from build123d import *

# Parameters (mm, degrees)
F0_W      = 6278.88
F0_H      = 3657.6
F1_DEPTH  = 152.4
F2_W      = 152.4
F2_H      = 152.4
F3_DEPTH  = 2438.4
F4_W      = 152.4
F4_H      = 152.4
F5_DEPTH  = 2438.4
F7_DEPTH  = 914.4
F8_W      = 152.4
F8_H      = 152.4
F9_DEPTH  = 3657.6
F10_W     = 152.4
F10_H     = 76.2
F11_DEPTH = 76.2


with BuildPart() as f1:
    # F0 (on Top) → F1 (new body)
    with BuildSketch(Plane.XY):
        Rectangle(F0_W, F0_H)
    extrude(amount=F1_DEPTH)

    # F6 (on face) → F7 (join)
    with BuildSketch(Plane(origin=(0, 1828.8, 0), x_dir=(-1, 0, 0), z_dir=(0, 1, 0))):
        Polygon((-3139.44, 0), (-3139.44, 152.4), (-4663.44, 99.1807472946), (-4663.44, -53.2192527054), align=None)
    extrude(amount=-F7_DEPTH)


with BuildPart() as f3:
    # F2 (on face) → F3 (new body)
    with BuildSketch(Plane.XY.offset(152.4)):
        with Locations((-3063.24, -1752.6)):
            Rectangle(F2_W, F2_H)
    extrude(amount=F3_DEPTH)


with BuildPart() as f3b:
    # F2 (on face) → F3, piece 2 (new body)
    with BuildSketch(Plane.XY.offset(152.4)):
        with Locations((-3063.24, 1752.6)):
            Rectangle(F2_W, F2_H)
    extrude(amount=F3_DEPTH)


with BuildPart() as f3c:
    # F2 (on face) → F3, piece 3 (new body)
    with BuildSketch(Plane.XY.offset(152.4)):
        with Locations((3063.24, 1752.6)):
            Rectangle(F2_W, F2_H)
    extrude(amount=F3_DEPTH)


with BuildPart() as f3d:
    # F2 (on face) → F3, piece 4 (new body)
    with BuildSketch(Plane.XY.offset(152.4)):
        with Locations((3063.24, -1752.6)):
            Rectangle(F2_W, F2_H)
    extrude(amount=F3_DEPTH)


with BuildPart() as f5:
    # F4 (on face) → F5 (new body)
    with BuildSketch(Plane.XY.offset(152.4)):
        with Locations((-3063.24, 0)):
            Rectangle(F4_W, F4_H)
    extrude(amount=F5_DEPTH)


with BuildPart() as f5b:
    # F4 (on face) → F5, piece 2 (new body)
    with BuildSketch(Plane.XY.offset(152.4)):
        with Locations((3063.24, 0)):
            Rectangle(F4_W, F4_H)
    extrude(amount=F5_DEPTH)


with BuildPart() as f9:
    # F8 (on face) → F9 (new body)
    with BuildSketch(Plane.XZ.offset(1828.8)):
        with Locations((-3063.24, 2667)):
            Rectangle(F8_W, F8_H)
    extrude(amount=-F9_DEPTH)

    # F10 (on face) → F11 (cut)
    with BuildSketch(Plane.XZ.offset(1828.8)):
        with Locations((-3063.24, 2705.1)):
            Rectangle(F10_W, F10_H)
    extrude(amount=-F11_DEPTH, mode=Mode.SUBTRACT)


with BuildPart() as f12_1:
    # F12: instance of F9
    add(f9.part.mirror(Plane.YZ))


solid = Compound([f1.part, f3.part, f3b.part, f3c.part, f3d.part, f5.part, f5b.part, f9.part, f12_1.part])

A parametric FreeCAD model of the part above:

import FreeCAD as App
import Part
import Sketcher

V = App.Vector
Q = App.Units.Quantity

doc = App.newDocument("Part")
body = doc.addObject("PartDesign::Body", "Body")

# Sketch on XY plane
sketch1 = doc.addObject("Sketcher::SketchObject", "Sketch")
body.addObject(sketch1)
sketch1.AttachmentSupport = (doc.XY_Plane, [""])
sketch1.MapMode = "FlatFace"
sketch1.addGeometry([
    Part.LineSegment(V(-3139, 1829, 0), V(-3139, -1829, 0)),
    Part.LineSegment(V(-3139, -1829, 0), V(3139, -1829, 0)),
    Part.LineSegment(V(3139, -1829, 0), V(3139, 1829, 0)),
    Part.LineSegment(V(3139, 1829, 0), V(-3139, 1829, 0)),
], False)
sketch1.addConstraint([
    Sketcher.Constraint("Coincident", 0, 2, 1, 1),
    Sketcher.Constraint("Coincident", 1, 2, 2, 1),
    Sketcher.Constraint("Coincident", 2, 2, 3, 1),
    Sketcher.Constraint("Coincident", 3, 2, 0, 1),
    Sketcher.Constraint("Vertical", 0),
    Sketcher.Constraint("Horizontal", 1),
    Sketcher.Constraint("Vertical", 2),
    Sketcher.Constraint("Horizontal", 3),
    Sketcher.Constraint("Symmetric", 0, 2, 2, 2, -1, 1),
    Sketcher.Constraint("DistanceY", 0, 2, 0, 1, Q("144 in")),
    Sketcher.Constraint("DistanceX", 1, 1, 1, 2, Q("247.2 in")),
])
pad1 = doc.addObject("PartDesign::Pad", "Pad")
body.addObject(pad1)
pad1.Profile = sketch1
pad1.Length = Q("6 in")

# Sketch on XZ plane
sketch2 = doc.addObject("Sketcher::SketchObject", "Sketch001")
body.addObject(sketch2)
sketch2.AttachmentSupport = (doc.XZ_Plane, [""])
sketch2.MapMode = "FlatFace"
sketch2.AttachmentOffset = App.Placement(V(0, 0, -72 * 25.4), App.Rotation())
sketch2.addGeometry([
    Part.LineSegment(V(3139, 0, 0), V(3139, 152, 0)),
    Part.LineSegment(V(3139, 152, 0), V(4663, 99, 0)),
    Part.LineSegment(V(4663, 99, 0), V(4663, -53, 0)),
    Part.LineSegment(V(4663, -53, 0), V(3139, 0, 0)),
], False)
sketch2.addConstraint([
    Sketcher.Constraint("Coincident", 0, 2, 1, 1),
    Sketcher.Constraint("Coincident", 1, 2, 2, 1),
    Sketcher.Constraint("Coincident", 2, 2, 3, 1),
    Sketcher.Constraint("Coincident", 3, 2, 0, 1),
    Sketcher.Constraint("Vertical", 0),
    Sketcher.Constraint("Vertical", 2),
    Sketcher.Constraint("PointOnObject", 3, 2, -1),
    Sketcher.Constraint("Parallel", 1, 3),
    Sketcher.Constraint("DistanceY", 0, 1, 0, 2, Q("6 in")),
    Sketcher.Constraint("Angle", 1, Q("-2 deg")),
    Sketcher.Constraint("DistanceX", 0, 2, 1, 2, Q("60 in")),
    Sketcher.Constraint("DistanceX", -1, 1, 0, 2, Q("123.6 in")),
])
pad2 = doc.addObject("PartDesign::Pad", "Pad001")
body.addObject(pad2)
pad2.Profile = sketch2
pad2.Length = Q("36 in")
body2 = doc.addObject("PartDesign::Body", "Body001")

# Sketch on XY plane
sketch3 = doc.addObject("Sketcher::SketchObject", "Sketch002")
body2.addObject(sketch3)
sketch3.AttachmentSupport = (doc.getObject("XY_Plane001"), [""])
sketch3.MapMode = "FlatFace"
sketch3.AttachmentOffset = App.Placement(V(0, 0, 6 * 25.4), App.Rotation())
sketch3.addGeometry([
    Part.LineSegment(V(-3139, -1676, 0), V(-3139, -1829, 0)),
    Part.LineSegment(V(-3139, -1829, 0), V(-2987, -1829, 0)),
    Part.LineSegment(V(-2987, -1829, 0), V(-2987, -1676, 0)),
    Part.LineSegment(V(-2987, -1676, 0), V(-3139, -1676, 0)),
], False)
sketch3.addConstraint([
    Sketcher.Constraint("Coincident", 0, 2, 1, 1),
    Sketcher.Constraint("Coincident", 1, 2, 2, 1),
    Sketcher.Constraint("Coincident", 2, 2, 3, 1),
    Sketcher.Constraint("Coincident", 3, 2, 0, 1),
    Sketcher.Constraint("Vertical", 0),
    Sketcher.Constraint("Horizontal", 1),
    Sketcher.Constraint("Vertical", 2),
    Sketcher.Constraint("Horizontal", 3),
    Sketcher.Constraint("Equal", 3, 0),
    Sketcher.Constraint("DistanceX", 1, 1, 1, 2, Q("6 in")),
    Sketcher.Constraint("DistanceY", 0, 2, -1, 1, Q("72 in")),
    Sketcher.Constraint("DistanceX", 0, 2, -1, 1, Q("123.6 in")),
])
pad3 = doc.addObject("PartDesign::Pad", "Pad002")
body2.addObject(pad3)
pad3.Profile = sketch3
pad3.Length = Q("96 in")
body3 = doc.addObject("PartDesign::Body", "Body002")

# Sketch on XY plane
sketch4 = doc.addObject("Sketcher::SketchObject", "Sketch003")
body3.addObject(sketch4)
sketch4.AttachmentSupport = (doc.getObject("XY_Plane002"), [""])
sketch4.MapMode = "FlatFace"
sketch4.AttachmentOffset = App.Placement(V(0, 0, 6 * 25.4), App.Rotation())
sketch4.addGeometry([
    Part.LineSegment(V(-3139, 1829, 0), V(-3139, 1676, 0)),
    Part.LineSegment(V(-3139, 1676, 0), V(-2987, 1676, 0)),
    Part.LineSegment(V(-2987, 1676, 0), V(-2987, 1829, 0)),
    Part.LineSegment(V(-2987, 1829, 0), V(-3139, 1829, 0)),
], False)
sketch4.addConstraint([
    Sketcher.Constraint("Coincident", 0, 2, 1, 1),
    Sketcher.Constraint("Coincident", 1, 2, 2, 1),
    Sketcher.Constraint("Coincident", 2, 2, 3, 1),
    Sketcher.Constraint("Coincident", 3, 2, 0, 1),
    Sketcher.Constraint("Vertical", 0),
    Sketcher.Constraint("Horizontal", 1),
    Sketcher.Constraint("Vertical", 2),
    Sketcher.Constraint("Horizontal", 3),
    Sketcher.Constraint("Equal", 3, 0),
    Sketcher.Constraint("DistanceX", 1, 1, 1, 2, Q("6 in")),
    Sketcher.Constraint("DistanceY", -1, 1, 0, 2, Q("66 in")),
    Sketcher.Constraint("DistanceX", 0, 2, -1, 1, Q("123.6 in")),
])
pad4 = doc.addObject("PartDesign::Pad", "Pad003")
body3.addObject(pad4)
pad4.Profile = sketch4
pad4.Length = Q("96 in")
body4 = doc.addObject("PartDesign::Body", "Body003")

# Sketch on XY plane
sketch5 = doc.addObject("Sketcher::SketchObject", "Sketch004")
body4.addObject(sketch5)
sketch5.AttachmentSupport = (doc.getObject("XY_Plane003"), [""])
sketch5.MapMode = "FlatFace"
sketch5.AttachmentOffset = App.Placement(V(0, 0, 6 * 25.4), App.Rotation())
sketch5.addGeometry([
    Part.LineSegment(V(2987, 1829, 0), V(2987, 1676, 0)),
    Part.LineSegment(V(2987, 1676, 0), V(3139, 1676, 0)),
    Part.LineSegment(V(3139, 1676, 0), V(3139, 1829, 0)),
    Part.LineSegment(V(3139, 1829, 0), V(2987, 1829, 0)),
], False)
sketch5.addConstraint([
    Sketcher.Constraint("Coincident", 0, 2, 1, 1),
    Sketcher.Constraint("Coincident", 1, 2, 2, 1),
    Sketcher.Constraint("Coincident", 2, 2, 3, 1),
    Sketcher.Constraint("Coincident", 3, 2, 0, 1),
    Sketcher.Constraint("Vertical", 0),
    Sketcher.Constraint("Horizontal", 1),
    Sketcher.Constraint("Vertical", 2),
    Sketcher.Constraint("Horizontal", 3),
    Sketcher.Constraint("Equal", 3, 0),
    Sketcher.Constraint("DistanceX", 1, 1, 1, 2, Q("6 in")),
    Sketcher.Constraint("DistanceY", -1, 1, 0, 2, Q("66 in")),
    Sketcher.Constraint("DistanceX", -1, 1, 0, 2, Q("117.6 in")),
])
pad5 = doc.addObject("PartDesign::Pad", "Pad004")
body4.addObject(pad5)
pad5.Profile = sketch5
pad5.Length = Q("96 in")
body5 = doc.addObject("PartDesign::Body", "Body004")

# Sketch on XY plane
sketch6 = doc.addObject("Sketcher::SketchObject", "Sketch005")
body5.addObject(sketch6)
sketch6.AttachmentSupport = (doc.getObject("XY_Plane004"), [""])
sketch6.MapMode = "FlatFace"
sketch6.AttachmentOffset = App.Placement(V(0, 0, 6 * 25.4), App.Rotation())
sketch6.addGeometry([
    Part.LineSegment(V(2987, -1676, 0), V(2987, -1829, 0)),
    Part.LineSegment(V(2987, -1829, 0), V(3139, -1829, 0)),
    Part.LineSegment(V(3139, -1829, 0), V(3139, -1676, 0)),
    Part.LineSegment(V(3139, -1676, 0), V(2987, -1676, 0)),
], False)
sketch6.addConstraint([
    Sketcher.Constraint("Coincident", 0, 2, 1, 1),
    Sketcher.Constraint("Coincident", 1, 2, 2, 1),
    Sketcher.Constraint("Coincident", 2, 2, 3, 1),
    Sketcher.Constraint("Coincident", 3, 2, 0, 1),
    Sketcher.Constraint("Vertical", 0),
    Sketcher.Constraint("Horizontal", 1),
    Sketcher.Constraint("Vertical", 2),
    Sketcher.Constraint("Horizontal", 3),
    Sketcher.Constraint("Equal", 3, 0),
    Sketcher.Constraint("DistanceX", 1, 1, 1, 2, Q("6 in")),
    Sketcher.Constraint("DistanceY", 0, 2, -1, 1, Q("72 in")),
    Sketcher.Constraint("DistanceX", -1, 1, 0, 2, Q("117.6 in")),
])
pad6 = doc.addObject("PartDesign::Pad", "Pad005")
body5.addObject(pad6)
pad6.Profile = sketch6
pad6.Length = Q("96 in")
body6 = doc.addObject("PartDesign::Body", "Body005")

# Sketch on XY plane
sketch7 = doc.addObject("Sketcher::SketchObject", "Sketch006")
body6.addObject(sketch7)
sketch7.AttachmentSupport = (doc.getObject("XY_Plane005"), [""])
sketch7.MapMode = "FlatFace"
sketch7.AttachmentOffset = App.Placement(V(0, 0, 6 * 25.4), App.Rotation())
sketch7.addGeometry([
    Part.LineSegment(V(-3139, 76, 0), V(-3139, -76, 0)),
    Part.LineSegment(V(-3139, -76, 0), V(-2987, -76, 0)),
    Part.LineSegment(V(-2987, -76, 0), V(-2987, 76, 0)),
    Part.LineSegment(V(-2987, 76, 0), V(-3139, 76, 0)),
], False)
sketch7.addConstraint([
    Sketcher.Constraint("Coincident", 0, 2, 1, 1),
    Sketcher.Constraint("Coincident", 1, 2, 2, 1),
    Sketcher.Constraint("Coincident", 2, 2, 3, 1),
    Sketcher.Constraint("Coincident", 3, 2, 0, 1),
    Sketcher.Constraint("Vertical", 0),
    Sketcher.Constraint("Horizontal", 1),
    Sketcher.Constraint("Vertical", 2),
    Sketcher.Constraint("Horizontal", 3),
    Sketcher.Constraint("Equal", 3, 0),
    Sketcher.Constraint("DistanceX", 1, 1, 1, 2, Q("6 in")),
    Sketcher.Constraint("DistanceY", 0, 2, -1, 1, Q("3 in")),
    Sketcher.Constraint("DistanceX", 0, 2, -1, 1, Q("123.6 in")),
])
pad7 = doc.addObject("PartDesign::Pad", "Pad006")
body6.addObject(pad7)
pad7.Profile = sketch7
pad7.Length = Q("96 in")
body7 = doc.addObject("PartDesign::Body", "Body006")

# Sketch on XY plane
sketch8 = doc.addObject("Sketcher::SketchObject", "Sketch007")
body7.addObject(sketch8)
sketch8.AttachmentSupport = (doc.getObject("XY_Plane006"), [""])
sketch8.MapMode = "FlatFace"
sketch8.AttachmentOffset = App.Placement(V(0, 0, 6 * 25.4), App.Rotation())
sketch8.addGeometry([
    Part.LineSegment(V(2987, 76, 0), V(2987, -76, 0)),
    Part.LineSegment(V(2987, -76, 0), V(3139, -76, 0)),
    Part.LineSegment(V(3139, -76, 0), V(3139, 76, 0)),
    Part.LineSegment(V(3139, 76, 0), V(2987, 76, 0)),
], False)
sketch8.addConstraint([
    Sketcher.Constraint("Coincident", 0, 2, 1, 1),
    Sketcher.Constraint("Coincident", 1, 2, 2, 1),
    Sketcher.Constraint("Coincident", 2, 2, 3, 1),
    Sketcher.Constraint("Coincident", 3, 2, 0, 1),
    Sketcher.Constraint("Vertical", 0),
    Sketcher.Constraint("Horizontal", 1),
    Sketcher.Constraint("Vertical", 2),
    Sketcher.Constraint("Horizontal", 3),
    Sketcher.Constraint("Equal", 3, 0),
    Sketcher.Constraint("DistanceX", 1, 1, 1, 2, Q("6 in")),
    Sketcher.Constraint("DistanceY", 0, 2, -1, 1, Q("3 in")),
    Sketcher.Constraint("DistanceX", -1, 1, 0, 2, Q("117.6 in")),
])
pad8 = doc.addObject("PartDesign::Pad", "Pad007")
body7.addObject(pad8)
pad8.Profile = sketch8
pad8.Length = Q("96 in")
body8 = doc.addObject("PartDesign::Body", "Body007")

# Sketch on XZ plane
sketch9 = doc.addObject("Sketcher::SketchObject", "Sketch008")
body8.addObject(sketch9)
sketch9.AttachmentSupport = (doc.getObject("XZ_Plane007"), [""])
sketch9.MapMode = "FlatFace"
sketch9.AttachmentOffset = App.Placement(V(0, 0, 72 * 25.4), App.Rotation())
sketch9.addGeometry([
    Part.LineSegment(V(-3139, 2743, 0), V(-3139, 2591, 0)),
    Part.LineSegment(V(-3139, 2591, 0), V(-2987, 2591, 0)),
    Part.LineSegment(V(-2987, 2591, 0), V(-2987, 2743, 0)),
    Part.LineSegment(V(-2987, 2743, 0), V(-3139, 2743, 0)),
], False)
sketch9.addConstraint([
    Sketcher.Constraint("Coincident", 0, 2, 1, 1),
    Sketcher.Constraint("Coincident", 1, 2, 2, 1),
    Sketcher.Constraint("Coincident", 2, 2, 3, 1),
    Sketcher.Constraint("Coincident", 3, 2, 0, 1),
    Sketcher.Constraint("Vertical", 0),
    Sketcher.Constraint("Horizontal", 1),
    Sketcher.Constraint("Vertical", 2),
    Sketcher.Constraint("Horizontal", 3),
    Sketcher.Constraint("Equal", 3, 0),
    Sketcher.Constraint("DistanceX", 1, 1, 1, 2, Q("6 in")),
    Sketcher.Constraint("DistanceY", -1, 1, 0, 2, Q("102 in")),
    Sketcher.Constraint("DistanceX", 0, 2, -1, 1, Q("123.6 in")),
])
pad9 = doc.addObject("PartDesign::Pad", "Pad008")
body8.addObject(pad9)
pad9.Profile = sketch9
pad9.Length = Q("144 in")
pad9.Reversed = True

# Sketch on XZ plane
sketch10 = doc.addObject("Sketcher::SketchObject", "Sketch009")
body8.addObject(sketch10)
sketch10.AttachmentSupport = (doc.getObject("XZ_Plane007"), [""])
sketch10.MapMode = "FlatFace"
sketch10.AttachmentOffset = App.Placement(V(0, 0, 72 * 25.4), App.Rotation())
sketch10.addGeometry([
    Part.LineSegment(V(-3139, 2743, 0), V(-3139, 2667, 0)),
    Part.LineSegment(V(-3139, 2667, 0), V(-2987, 2667, 0)),
    Part.LineSegment(V(-2987, 2667, 0), V(-2987, 2743, 0)),
    Part.LineSegment(V(-2987, 2743, 0), V(-3139, 2743, 0)),
], False)
sketch10.addConstraint([
    Sketcher.Constraint("Coincident", 0, 2, 1, 1),
    Sketcher.Constraint("Coincident", 1, 2, 2, 1),
    Sketcher.Constraint("Coincident", 2, 2, 3, 1),
    Sketcher.Constraint("Coincident", 3, 2, 0, 1),
    Sketcher.Constraint("Vertical", 0),
    Sketcher.Constraint("Horizontal", 1),
    Sketcher.Constraint("Vertical", 2),
    Sketcher.Constraint("Horizontal", 3),
    Sketcher.Constraint("DistanceX", 1, 1, 1, 2, Q("6 in")),
    Sketcher.Constraint("DistanceY", 0, 2, 0, 1, Q("3 in")),
    Sketcher.Constraint("DistanceY", -1, 1, 0, 2, Q("105 in")),
    Sketcher.Constraint("DistanceX", 0, 2, -1, 1, Q("123.6 in")),
])
pocket1 = doc.addObject("PartDesign::Pocket", "Pocket")
body8.addObject(pocket1)
pocket1.Profile = sketch10
pocket1.Length = Q("3 in")
body9 = doc.addObject("PartDesign::Body", "Body008")
doc.recompute()

mirroring = doc.addObject("Part::Mirroring", "Mirroring")
mirroring.Source = body8
mirroring.Base = V(0, 0, 0)
mirroring.Normal = V(1, 0, 0)
body9.BaseFeature = mirroring
doc.recompute()
mirroring.Visibility = False

doc.recompute()
